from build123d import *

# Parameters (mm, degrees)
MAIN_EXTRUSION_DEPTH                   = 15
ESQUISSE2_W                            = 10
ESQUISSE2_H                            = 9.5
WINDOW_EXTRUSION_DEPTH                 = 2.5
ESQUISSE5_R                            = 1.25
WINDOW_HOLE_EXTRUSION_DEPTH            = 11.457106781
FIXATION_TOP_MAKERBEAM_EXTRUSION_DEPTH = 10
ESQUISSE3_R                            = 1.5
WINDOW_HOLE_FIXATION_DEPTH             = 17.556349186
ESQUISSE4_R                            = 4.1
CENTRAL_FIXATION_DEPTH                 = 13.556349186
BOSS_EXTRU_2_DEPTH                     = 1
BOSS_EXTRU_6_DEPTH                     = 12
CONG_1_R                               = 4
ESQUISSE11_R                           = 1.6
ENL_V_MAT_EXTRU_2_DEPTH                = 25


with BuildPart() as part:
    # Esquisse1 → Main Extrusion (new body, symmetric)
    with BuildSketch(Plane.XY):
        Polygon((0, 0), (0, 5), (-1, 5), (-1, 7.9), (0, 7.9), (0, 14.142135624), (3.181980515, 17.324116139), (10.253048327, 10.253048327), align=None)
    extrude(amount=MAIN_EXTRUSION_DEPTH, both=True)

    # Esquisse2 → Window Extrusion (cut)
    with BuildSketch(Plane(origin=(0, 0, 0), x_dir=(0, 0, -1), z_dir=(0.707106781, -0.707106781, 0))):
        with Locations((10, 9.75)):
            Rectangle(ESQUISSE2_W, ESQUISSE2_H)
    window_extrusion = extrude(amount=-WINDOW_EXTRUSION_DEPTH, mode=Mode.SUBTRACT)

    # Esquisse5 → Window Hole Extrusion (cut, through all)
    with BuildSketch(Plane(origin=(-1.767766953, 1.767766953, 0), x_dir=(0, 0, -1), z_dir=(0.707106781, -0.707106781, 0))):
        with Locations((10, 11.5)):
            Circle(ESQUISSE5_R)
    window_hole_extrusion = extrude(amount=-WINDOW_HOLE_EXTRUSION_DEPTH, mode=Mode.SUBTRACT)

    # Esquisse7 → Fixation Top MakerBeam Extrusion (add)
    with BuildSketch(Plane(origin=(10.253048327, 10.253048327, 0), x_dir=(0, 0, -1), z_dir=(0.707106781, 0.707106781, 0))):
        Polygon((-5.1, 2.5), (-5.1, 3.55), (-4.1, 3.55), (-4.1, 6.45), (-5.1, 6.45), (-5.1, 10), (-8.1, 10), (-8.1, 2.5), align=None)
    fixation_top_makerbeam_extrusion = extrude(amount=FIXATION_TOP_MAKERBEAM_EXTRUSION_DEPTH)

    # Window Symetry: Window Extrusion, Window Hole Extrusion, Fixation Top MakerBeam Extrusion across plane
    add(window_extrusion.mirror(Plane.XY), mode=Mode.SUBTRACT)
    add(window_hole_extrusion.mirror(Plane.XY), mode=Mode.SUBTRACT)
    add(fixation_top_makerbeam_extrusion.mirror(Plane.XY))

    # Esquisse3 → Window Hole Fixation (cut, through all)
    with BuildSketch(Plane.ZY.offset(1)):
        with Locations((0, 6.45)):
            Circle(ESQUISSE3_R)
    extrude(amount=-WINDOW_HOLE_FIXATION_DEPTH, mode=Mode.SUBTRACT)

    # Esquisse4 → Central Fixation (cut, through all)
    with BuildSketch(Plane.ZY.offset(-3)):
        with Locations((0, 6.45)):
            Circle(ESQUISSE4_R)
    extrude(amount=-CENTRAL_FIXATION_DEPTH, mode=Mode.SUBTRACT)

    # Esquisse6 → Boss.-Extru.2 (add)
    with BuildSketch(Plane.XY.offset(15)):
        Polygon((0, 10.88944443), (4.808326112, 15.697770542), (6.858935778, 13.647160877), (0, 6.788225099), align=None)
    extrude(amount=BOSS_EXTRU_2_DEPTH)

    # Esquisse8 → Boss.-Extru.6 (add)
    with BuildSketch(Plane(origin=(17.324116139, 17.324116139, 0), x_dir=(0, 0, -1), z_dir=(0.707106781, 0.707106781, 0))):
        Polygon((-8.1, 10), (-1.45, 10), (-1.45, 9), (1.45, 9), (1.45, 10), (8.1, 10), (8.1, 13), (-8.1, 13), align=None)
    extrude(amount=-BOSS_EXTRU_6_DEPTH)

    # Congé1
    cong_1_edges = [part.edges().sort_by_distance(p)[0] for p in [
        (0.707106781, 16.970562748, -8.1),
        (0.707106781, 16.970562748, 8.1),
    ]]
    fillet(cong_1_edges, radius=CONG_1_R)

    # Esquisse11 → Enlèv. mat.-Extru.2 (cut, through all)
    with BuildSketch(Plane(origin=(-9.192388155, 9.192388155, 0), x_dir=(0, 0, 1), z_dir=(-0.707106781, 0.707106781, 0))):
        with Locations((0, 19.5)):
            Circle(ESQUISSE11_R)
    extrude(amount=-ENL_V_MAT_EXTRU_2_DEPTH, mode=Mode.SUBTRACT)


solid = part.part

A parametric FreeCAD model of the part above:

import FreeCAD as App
import Part
import Sketcher
from FreeCAD import Vector
Q = App.Units.Quantity


def edges_at(feature, points):
    """Names of the edges that pass closest to the given points."""
    edges = feature.Shape.Edges
    near = lambda p: min(range(len(edges)), key=lambda i: edges[i].distToShape(Part.Vertex(*p))[0])
    return sorted({f"Edge{near(p) + 1}" for p in points})


def add_polygon(sketch, points):
    """Adds a closed chain of lines whose ends are joined by coincident constraints."""
    first, n = sketch.GeometryCount, len(points)
    for a, b in zip(points, points[1:] + points[:1]):
        sketch.addGeometry(Part.LineSegment(App.Vector(*a, 0), App.Vector(*b, 0)), False)
    for i in range(n):
        sketch.addConstraint(Sketcher.Constraint("Coincident", first + i, 2, first + (i + 1) % n, 1))

doc = App.newDocument("Part")
body = doc.addObject("PartDesign::Body", "Body")

# Sketch on XY plane
sketch1 = body.newObject("Sketcher::SketchObject", "Sketch")
sketch1.AttachmentSupport = (doc.getObject("XY_Plane"), [""])
sketch1.MapMode = "FlatFace"
add_polygon(sketch1, [(0, 5), (0, 0), (10.3, 10.3), (3.2, 17.3), (0, 14.1), (0, 7.9), (-1, 7.9), (-1, 5)])  # lines 0-7
sketch1.addConstraint(Sketcher.Constraint("Vertical", 0))
sketch1.addConstraint(Sketcher.Constraint("Vertical", 4))
sketch1.addConstraint(Sketcher.Constraint("Horizontal", 5))
sketch1.addConstraint(Sketcher.Constraint("Vertical", 6))
sketch1.addConstraint(Sketcher.Constraint("Horizontal", 7))
sketch1.addConstraint(Sketcher.Constraint("Coincident", 0, 2, -1, 1))
sketch1.addConstraint(Sketcher.Constraint("PointOnObject", 3, 2, -2))
sketch1.addConstraint(Sketcher.Constraint("Perpendicular", 1, 2))
sketch1.addConstraint(Sketcher.Constraint("Perpendicular", 2, 3))
sketch1.addConstraint(Sketcher.Constraint("DistanceX", 5, 2, 5, 1, 1.0))
sketch1.addConstraint(Sketcher.Constraint("DistanceY", 0, 2, 0, 1, 5.0))
sketch1.addConstraint(Sketcher.Constraint("Angle", 1, Q("45 deg")))
sketch1.addConstraint(Sketcher.Constraint("Distance", 2, 10.0))
sketch1.addConstraint(Sketcher.Constraint("DistanceY", 6, 2, 6, 1, 2.9))
sketch1.addConstraint(Sketcher.Constraint("Distance", 1, 14.5))
pad1 = body.newObject("PartDesign::Pad", "Pad")
pad1.Profile = sketch1
pad1.Length = 30
pad1.Midplane = True

# Sketch on an angled plane
sketch2 = body.newObject("Sketcher::SketchObject", "Sketch001")
sketch2.Placement = App.Placement(Vector(0, 0, 0), App.Rotation(Vector(0, 0, -1), Vector(0.707106781, 0.707106781, 0), Vector(0.707106781, -0.707106781, 0), "ZXY"))
add_polygon(sketch2, [(5, 14), (5, 5), (15, 5), (15, 14)])  # lines 0-3
sketch2.addConstraint(Sketcher.Constraint("Vertical", 0))
sketch2.addConstraint(Sketcher.Constraint("Horizontal", 1))
sketch2.addConstraint(Sketcher.Constraint("Vertical", 2))
sketch2.addConstraint(Sketcher.Constraint("Horizontal", 3))
sketch2.addConstraint(Sketcher.Constraint("DistanceX", 1, 1, 1, 2, 10.0))
sketch2.addConstraint(Sketcher.Constraint("DistanceY", 0, 2, 0, 1, 9.5))
sketch2.addConstraint(Sketcher.Constraint("DistanceX", -1, 1, 0, 2, 5.0))
sketch2.addConstraint(Sketcher.Constraint("DistanceY", -1, 1, 0, 2, 5.0))
pocket1 = body.newObject("PartDesign::Pocket", "Pocket")
pocket1.Profile = sketch2
pocket1.Length = 2.5

# Sketch on an angled plane
sketch3 = body.newObject("Sketcher::SketchObject", "Sketch002")
sketch3.Placement = App.Placement(Vector(-1.767767, 1.767767, 0), App.Rotation(Vector(0, 0, -1), Vector(0.707106781, 0.707106781, 0), Vector(0.707106781, -0.707106781, 0), "ZXY"))
sketch3.addGeometry(Part.Circle(Vector(10, 11.5, 0), Vector(0, 0, 1), 1.2), False)
sketch3.addConstraint(Sketcher.Constraint("Diameter", 0, 2.5))
sketch3.addConstraint(Sketcher.Constraint("DistanceX", -1, 1, 0, 3, 10.0))
sketch3.addConstraint(Sketcher.Constraint("DistanceY", -1, 1, 0, 3, 11.5))
pocket2 = body.newObject("PartDesign::Pocket", "Pocket001")
pocket2.Profile = sketch3
pocket2.Type = "ThroughAll"

# Sketch on an angled plane
sketch4 = body.newObject("Sketcher::SketchObject", "Sketch003")
sketch4.Placement = App.Placement(Vector(10.253048, 10.253048, 0), App.Rotation(Vector(0, 0, -1), Vector(-0.707106781, 0.707106781, 0), Vector(0.707106781, 0.707106781, 0), "ZXY"))
add_polygon(sketch4, [(-5.1, 2.5), (-5.1, 3.5), (-4.1, 3.5), (-4.1, 6.4), (-5.1, 6.4), (-5.1, 10), (-8.1, 10), (-8.1, 2.5)])  # lines 0-7
sketch4.addConstraint(Sketcher.Constraint("Vertical", 0))
sketch4.addConstraint(Sketcher.Constraint("Horizontal", 1))
sketch4.addConstraint(Sketcher.Constraint("Vertical", 2))
sketch4.addConstraint(Sketcher.Constraint("Horizontal", 3))
sketch4.addConstraint(Sketcher.Constraint("Vertical", 4))
sketch4.addConstraint(Sketcher.Constraint("Horizontal", 5))
sketch4.addConstraint(Sketcher.Constraint("Vertical", 6))
sketch4.addConstraint(Sketcher.Constraint("Horizontal", 7))
sketch4.addConstraint(Sketcher.Constraint("Vertical", 0, 2, 3, 2))
sketch4.addConstraint(Sketcher.Constraint("DistanceX", 1, 1, 1, 2, 1.0))
sketch4.addConstraint(Sketcher.Constraint("DistanceX", 5, 2, 5, 1, 3.0))
sketch4.addConstraint(Sketcher.Constraint("DistanceY", 2, 1, 2, 2, 2.9))
sketch4.addConstraint(Sketcher.Constraint("DistanceY", 6, 2, 6, 1, 7.5))
sketch4.addConstraint(Sketcher.Constraint("DistanceY", -1, 1, 4, 2, 10.0))
sketch4.addConstraint(Sketcher.Constraint("DistanceY", 0, 1, 0, 2, 1.05))
sketch4.addConstraint(Sketcher.Constraint("DistanceX", 0, 2, -1, 1, 5.1))
pad2 = body.newObject("PartDesign::Pad", "Pad001")
pad2.Profile = sketch4
pad2.Length = 10
doc.recompute()

mirrored = body.newObject("PartDesign::Mirrored", "Mirrored")
mirrored.Originals = [pocket1, pocket2, pad2]
mirrored.MirrorPlane = (doc.getObject("XY_Plane"), [""])
body.Tip = mirrored

# Sketch on YZ plane
sketch5 = body.newObject("Sketcher::SketchObject", "Sketch004")
sketch5.AttachmentSupport = (doc.getObject("YZ_Plane"), [""])
sketch5.MapMode = "FlatFace"
sketch5.AttachmentOffset = App.Placement(Vector(0, 0, -1), App.Rotation())
sketch5.addGeometry(Part.Circle(Vector(6.5, 0, 0), Vector(0, 0, 1), 1.5), False)
sketch5.addConstraint(Sketcher.Constraint("PointOnObject", 0, 3, -1))
sketch5.addConstraint(Sketcher.Constraint("Diameter", 0, 3.0))
sketch5.addConstraint(Sketcher.Constraint("DistanceX", -1, 1, 0, 3, 6.45))
pocket3 = body.newObject("PartDesign::Pocket", "Pocket002")
pocket3.Profile = sketch5
pocket3.Type = "ThroughAll"
pocket3.Reversed = True

# Sketch on YZ plane
sketch6 = body.newObject("Sketcher::SketchObject", "Sketch005")
sketch6.AttachmentSupport = (doc.getObject("YZ_Plane"), [""])
sketch6.MapMode = "FlatFace"
sketch6.AttachmentOffset = App.Placement(Vector(0, 0, 3), App.Rotation())
sketch6.addGeometry(Part.Circle(Vector(6.5, 0, 0), Vector(0, 0, 1), 4.1), False)
sketch6.addConstraint(Sketcher.Constraint("PointOnObject", 0, 3, -1))
sketch6.addConstraint(Sketcher.Constraint("Diameter", 0, 8.2))
sketch6.addConstraint(Sketcher.Constraint("DistanceX", -1, 1, 0, 3, 6.45))
pocket4 = body.newObject("PartDesign::Pocket", "Pocket003")
pocket4.Profile = sketch6
pocket4.Type = "ThroughAll"
pocket4.Reversed = True

# Sketch on XY plane
sketch7 = body.newObject("Sketcher::SketchObject", "Sketch006")
sketch7.AttachmentSupport = (doc.getObject("XY_Plane"), [""])
sketch7.MapMode = "FlatFace"
sketch7.AttachmentOffset = App.Placement(Vector(0, 0, 15), App.Rotation())
add_polygon(sketch7, [(4.8, 15.7), (0, 10.9), (0, 6.8), (6.9, 13.6)])  # lines 0-3
sketch7.addConstraint(Sketcher.Constraint("Vertical", 1))
sketch7.addConstraint(Sketcher.Constraint("PointOnObject", 0, 2, -2))
sketch7.addConstraint(Sketcher.Constraint("Parallel", 0, 2))
sketch7.addConstraint(Sketcher.Constraint("Perpendicular", 2, 3))
sketch7.addConstraint(Sketcher.Constraint("Angle", 0, Q("-135 deg")))
sketch7.addConstraint(Sketcher.Constraint("Distance", 0, 6.8))
sketch7.addConstraint(Sketcher.Constraint("Distance", 2, 9.7))
sketch7.addConstraint(Sketcher.Constraint("DistanceY", -1, 1, 2, 2, 13.647161))
pad3 = body.newObject("PartDesign::Pad", "Pad002")
pad3.Profile = sketch7
pad3.Length = 1

# Sketch on an angled plane
sketch8 = body.newObject("Sketcher::SketchObject", "Sketch007")
sketch8.Placement = App.Placement(Vector(17.324116, 17.324116, 0), App.Rotation(Vector(0, 0, -1), Vector(-0.707106781, 0.707106781, 0), Vector(0.707106781, 0.707106781, 0), "ZXY"))
add_polygon(sketch8, [(-8.1, 10), (-1.4, 10), (-1.4, 9), (1.4, 9), (1.4, 10), (8.1, 10), (8.1, 13), (-8.1, 13)])  # lines 0-7
sketch8.addConstraint(Sketcher.Constraint("Horizontal", 0))
sketch8.addConstraint(Sketcher.Constraint("Vertical", 1))
sketch8.addConstraint(Sketcher.Constraint("Horizontal", 2))
sketch8.addConstraint(Sketcher.Constraint("Vertical", 3))
sketch8.addConstraint(Sketcher.Constraint("Horizontal", 4))
sketch8.addConstraint(Sketcher.Constraint("Vertical", 5))
sketch8.addConstraint(Sketcher.Constraint("Horizontal", 6))
sketch8.addConstraint(Sketcher.Constraint("Vertical", 7))
sketch8.addConstraint(Sketcher.Constraint("Symmetric", 0, 2, 3, 2, -2))
sketch8.addConstraint(Sketcher.Constraint("Equal", 0, 4))
sketch8.addConstraint(Sketcher.Constraint("DistanceY", 1, 2, 1, 1, 1.0))
sketch8.addConstraint(Sketcher.Constraint("DistanceY", 5, 1, 5, 2, 3.0))
sketch8.addConstraint(Sketcher.Constraint("DistanceX", 2, 1, 2, 2, 2.9))
sketch8.addConstraint(Sketcher.Constraint("DistanceX", 6, 2, 6, 1, 16.2))
sketch8.addConstraint(Sketcher.Constraint("DistanceY", -1, 1, 0, 2, 10.0))
pad4 = body.newObject("PartDesign::Pad", "Pad003")
pad4.Profile = sketch8
pad4.Length = 12
pad4.Reversed = True
doc.recompute()

fillet = body.newObject("PartDesign::Fillet", "Fillet")
fillet.Base = (pad4, edges_at(pad4, [(0.707, 16.971, -8.1), (0.707, 16.971, 8.1)]))
fillet.Radius = 4

# Sketch on an angled plane
sketch9 = body.newObject("Sketcher::SketchObject", "Sketch008")
sketch9.Placement = App.Placement(Vector(-9.192388, 9.192388, 0), App.Rotation(Vector(0, 0, 1), Vector(0.707106781, 0.707106781, 0), Vector(-0.707106781, 0.707106781, 0), "ZXY"))
sketch9.addGeometry(Part.Circle(Vector(0, 19.5, 0), Vector(0, 0, 1), 1.6), False)
sketch9.addConstraint(Sketcher.Constraint("PointOnObject", 0, 3, -2))
sketch9.addConstraint(Sketcher.Constraint("Diameter", 0, 3.2))
sketch9.addConstraint(Sketcher.Constraint("DistanceY", -1, 1, 0, 3, 19.5))
pocket5 = body.newObject("PartDesign::Pocket", "Pocket004")
pocket5.Profile = sketch9
pocket5.Type = "ThroughAll"

doc.recompute()
